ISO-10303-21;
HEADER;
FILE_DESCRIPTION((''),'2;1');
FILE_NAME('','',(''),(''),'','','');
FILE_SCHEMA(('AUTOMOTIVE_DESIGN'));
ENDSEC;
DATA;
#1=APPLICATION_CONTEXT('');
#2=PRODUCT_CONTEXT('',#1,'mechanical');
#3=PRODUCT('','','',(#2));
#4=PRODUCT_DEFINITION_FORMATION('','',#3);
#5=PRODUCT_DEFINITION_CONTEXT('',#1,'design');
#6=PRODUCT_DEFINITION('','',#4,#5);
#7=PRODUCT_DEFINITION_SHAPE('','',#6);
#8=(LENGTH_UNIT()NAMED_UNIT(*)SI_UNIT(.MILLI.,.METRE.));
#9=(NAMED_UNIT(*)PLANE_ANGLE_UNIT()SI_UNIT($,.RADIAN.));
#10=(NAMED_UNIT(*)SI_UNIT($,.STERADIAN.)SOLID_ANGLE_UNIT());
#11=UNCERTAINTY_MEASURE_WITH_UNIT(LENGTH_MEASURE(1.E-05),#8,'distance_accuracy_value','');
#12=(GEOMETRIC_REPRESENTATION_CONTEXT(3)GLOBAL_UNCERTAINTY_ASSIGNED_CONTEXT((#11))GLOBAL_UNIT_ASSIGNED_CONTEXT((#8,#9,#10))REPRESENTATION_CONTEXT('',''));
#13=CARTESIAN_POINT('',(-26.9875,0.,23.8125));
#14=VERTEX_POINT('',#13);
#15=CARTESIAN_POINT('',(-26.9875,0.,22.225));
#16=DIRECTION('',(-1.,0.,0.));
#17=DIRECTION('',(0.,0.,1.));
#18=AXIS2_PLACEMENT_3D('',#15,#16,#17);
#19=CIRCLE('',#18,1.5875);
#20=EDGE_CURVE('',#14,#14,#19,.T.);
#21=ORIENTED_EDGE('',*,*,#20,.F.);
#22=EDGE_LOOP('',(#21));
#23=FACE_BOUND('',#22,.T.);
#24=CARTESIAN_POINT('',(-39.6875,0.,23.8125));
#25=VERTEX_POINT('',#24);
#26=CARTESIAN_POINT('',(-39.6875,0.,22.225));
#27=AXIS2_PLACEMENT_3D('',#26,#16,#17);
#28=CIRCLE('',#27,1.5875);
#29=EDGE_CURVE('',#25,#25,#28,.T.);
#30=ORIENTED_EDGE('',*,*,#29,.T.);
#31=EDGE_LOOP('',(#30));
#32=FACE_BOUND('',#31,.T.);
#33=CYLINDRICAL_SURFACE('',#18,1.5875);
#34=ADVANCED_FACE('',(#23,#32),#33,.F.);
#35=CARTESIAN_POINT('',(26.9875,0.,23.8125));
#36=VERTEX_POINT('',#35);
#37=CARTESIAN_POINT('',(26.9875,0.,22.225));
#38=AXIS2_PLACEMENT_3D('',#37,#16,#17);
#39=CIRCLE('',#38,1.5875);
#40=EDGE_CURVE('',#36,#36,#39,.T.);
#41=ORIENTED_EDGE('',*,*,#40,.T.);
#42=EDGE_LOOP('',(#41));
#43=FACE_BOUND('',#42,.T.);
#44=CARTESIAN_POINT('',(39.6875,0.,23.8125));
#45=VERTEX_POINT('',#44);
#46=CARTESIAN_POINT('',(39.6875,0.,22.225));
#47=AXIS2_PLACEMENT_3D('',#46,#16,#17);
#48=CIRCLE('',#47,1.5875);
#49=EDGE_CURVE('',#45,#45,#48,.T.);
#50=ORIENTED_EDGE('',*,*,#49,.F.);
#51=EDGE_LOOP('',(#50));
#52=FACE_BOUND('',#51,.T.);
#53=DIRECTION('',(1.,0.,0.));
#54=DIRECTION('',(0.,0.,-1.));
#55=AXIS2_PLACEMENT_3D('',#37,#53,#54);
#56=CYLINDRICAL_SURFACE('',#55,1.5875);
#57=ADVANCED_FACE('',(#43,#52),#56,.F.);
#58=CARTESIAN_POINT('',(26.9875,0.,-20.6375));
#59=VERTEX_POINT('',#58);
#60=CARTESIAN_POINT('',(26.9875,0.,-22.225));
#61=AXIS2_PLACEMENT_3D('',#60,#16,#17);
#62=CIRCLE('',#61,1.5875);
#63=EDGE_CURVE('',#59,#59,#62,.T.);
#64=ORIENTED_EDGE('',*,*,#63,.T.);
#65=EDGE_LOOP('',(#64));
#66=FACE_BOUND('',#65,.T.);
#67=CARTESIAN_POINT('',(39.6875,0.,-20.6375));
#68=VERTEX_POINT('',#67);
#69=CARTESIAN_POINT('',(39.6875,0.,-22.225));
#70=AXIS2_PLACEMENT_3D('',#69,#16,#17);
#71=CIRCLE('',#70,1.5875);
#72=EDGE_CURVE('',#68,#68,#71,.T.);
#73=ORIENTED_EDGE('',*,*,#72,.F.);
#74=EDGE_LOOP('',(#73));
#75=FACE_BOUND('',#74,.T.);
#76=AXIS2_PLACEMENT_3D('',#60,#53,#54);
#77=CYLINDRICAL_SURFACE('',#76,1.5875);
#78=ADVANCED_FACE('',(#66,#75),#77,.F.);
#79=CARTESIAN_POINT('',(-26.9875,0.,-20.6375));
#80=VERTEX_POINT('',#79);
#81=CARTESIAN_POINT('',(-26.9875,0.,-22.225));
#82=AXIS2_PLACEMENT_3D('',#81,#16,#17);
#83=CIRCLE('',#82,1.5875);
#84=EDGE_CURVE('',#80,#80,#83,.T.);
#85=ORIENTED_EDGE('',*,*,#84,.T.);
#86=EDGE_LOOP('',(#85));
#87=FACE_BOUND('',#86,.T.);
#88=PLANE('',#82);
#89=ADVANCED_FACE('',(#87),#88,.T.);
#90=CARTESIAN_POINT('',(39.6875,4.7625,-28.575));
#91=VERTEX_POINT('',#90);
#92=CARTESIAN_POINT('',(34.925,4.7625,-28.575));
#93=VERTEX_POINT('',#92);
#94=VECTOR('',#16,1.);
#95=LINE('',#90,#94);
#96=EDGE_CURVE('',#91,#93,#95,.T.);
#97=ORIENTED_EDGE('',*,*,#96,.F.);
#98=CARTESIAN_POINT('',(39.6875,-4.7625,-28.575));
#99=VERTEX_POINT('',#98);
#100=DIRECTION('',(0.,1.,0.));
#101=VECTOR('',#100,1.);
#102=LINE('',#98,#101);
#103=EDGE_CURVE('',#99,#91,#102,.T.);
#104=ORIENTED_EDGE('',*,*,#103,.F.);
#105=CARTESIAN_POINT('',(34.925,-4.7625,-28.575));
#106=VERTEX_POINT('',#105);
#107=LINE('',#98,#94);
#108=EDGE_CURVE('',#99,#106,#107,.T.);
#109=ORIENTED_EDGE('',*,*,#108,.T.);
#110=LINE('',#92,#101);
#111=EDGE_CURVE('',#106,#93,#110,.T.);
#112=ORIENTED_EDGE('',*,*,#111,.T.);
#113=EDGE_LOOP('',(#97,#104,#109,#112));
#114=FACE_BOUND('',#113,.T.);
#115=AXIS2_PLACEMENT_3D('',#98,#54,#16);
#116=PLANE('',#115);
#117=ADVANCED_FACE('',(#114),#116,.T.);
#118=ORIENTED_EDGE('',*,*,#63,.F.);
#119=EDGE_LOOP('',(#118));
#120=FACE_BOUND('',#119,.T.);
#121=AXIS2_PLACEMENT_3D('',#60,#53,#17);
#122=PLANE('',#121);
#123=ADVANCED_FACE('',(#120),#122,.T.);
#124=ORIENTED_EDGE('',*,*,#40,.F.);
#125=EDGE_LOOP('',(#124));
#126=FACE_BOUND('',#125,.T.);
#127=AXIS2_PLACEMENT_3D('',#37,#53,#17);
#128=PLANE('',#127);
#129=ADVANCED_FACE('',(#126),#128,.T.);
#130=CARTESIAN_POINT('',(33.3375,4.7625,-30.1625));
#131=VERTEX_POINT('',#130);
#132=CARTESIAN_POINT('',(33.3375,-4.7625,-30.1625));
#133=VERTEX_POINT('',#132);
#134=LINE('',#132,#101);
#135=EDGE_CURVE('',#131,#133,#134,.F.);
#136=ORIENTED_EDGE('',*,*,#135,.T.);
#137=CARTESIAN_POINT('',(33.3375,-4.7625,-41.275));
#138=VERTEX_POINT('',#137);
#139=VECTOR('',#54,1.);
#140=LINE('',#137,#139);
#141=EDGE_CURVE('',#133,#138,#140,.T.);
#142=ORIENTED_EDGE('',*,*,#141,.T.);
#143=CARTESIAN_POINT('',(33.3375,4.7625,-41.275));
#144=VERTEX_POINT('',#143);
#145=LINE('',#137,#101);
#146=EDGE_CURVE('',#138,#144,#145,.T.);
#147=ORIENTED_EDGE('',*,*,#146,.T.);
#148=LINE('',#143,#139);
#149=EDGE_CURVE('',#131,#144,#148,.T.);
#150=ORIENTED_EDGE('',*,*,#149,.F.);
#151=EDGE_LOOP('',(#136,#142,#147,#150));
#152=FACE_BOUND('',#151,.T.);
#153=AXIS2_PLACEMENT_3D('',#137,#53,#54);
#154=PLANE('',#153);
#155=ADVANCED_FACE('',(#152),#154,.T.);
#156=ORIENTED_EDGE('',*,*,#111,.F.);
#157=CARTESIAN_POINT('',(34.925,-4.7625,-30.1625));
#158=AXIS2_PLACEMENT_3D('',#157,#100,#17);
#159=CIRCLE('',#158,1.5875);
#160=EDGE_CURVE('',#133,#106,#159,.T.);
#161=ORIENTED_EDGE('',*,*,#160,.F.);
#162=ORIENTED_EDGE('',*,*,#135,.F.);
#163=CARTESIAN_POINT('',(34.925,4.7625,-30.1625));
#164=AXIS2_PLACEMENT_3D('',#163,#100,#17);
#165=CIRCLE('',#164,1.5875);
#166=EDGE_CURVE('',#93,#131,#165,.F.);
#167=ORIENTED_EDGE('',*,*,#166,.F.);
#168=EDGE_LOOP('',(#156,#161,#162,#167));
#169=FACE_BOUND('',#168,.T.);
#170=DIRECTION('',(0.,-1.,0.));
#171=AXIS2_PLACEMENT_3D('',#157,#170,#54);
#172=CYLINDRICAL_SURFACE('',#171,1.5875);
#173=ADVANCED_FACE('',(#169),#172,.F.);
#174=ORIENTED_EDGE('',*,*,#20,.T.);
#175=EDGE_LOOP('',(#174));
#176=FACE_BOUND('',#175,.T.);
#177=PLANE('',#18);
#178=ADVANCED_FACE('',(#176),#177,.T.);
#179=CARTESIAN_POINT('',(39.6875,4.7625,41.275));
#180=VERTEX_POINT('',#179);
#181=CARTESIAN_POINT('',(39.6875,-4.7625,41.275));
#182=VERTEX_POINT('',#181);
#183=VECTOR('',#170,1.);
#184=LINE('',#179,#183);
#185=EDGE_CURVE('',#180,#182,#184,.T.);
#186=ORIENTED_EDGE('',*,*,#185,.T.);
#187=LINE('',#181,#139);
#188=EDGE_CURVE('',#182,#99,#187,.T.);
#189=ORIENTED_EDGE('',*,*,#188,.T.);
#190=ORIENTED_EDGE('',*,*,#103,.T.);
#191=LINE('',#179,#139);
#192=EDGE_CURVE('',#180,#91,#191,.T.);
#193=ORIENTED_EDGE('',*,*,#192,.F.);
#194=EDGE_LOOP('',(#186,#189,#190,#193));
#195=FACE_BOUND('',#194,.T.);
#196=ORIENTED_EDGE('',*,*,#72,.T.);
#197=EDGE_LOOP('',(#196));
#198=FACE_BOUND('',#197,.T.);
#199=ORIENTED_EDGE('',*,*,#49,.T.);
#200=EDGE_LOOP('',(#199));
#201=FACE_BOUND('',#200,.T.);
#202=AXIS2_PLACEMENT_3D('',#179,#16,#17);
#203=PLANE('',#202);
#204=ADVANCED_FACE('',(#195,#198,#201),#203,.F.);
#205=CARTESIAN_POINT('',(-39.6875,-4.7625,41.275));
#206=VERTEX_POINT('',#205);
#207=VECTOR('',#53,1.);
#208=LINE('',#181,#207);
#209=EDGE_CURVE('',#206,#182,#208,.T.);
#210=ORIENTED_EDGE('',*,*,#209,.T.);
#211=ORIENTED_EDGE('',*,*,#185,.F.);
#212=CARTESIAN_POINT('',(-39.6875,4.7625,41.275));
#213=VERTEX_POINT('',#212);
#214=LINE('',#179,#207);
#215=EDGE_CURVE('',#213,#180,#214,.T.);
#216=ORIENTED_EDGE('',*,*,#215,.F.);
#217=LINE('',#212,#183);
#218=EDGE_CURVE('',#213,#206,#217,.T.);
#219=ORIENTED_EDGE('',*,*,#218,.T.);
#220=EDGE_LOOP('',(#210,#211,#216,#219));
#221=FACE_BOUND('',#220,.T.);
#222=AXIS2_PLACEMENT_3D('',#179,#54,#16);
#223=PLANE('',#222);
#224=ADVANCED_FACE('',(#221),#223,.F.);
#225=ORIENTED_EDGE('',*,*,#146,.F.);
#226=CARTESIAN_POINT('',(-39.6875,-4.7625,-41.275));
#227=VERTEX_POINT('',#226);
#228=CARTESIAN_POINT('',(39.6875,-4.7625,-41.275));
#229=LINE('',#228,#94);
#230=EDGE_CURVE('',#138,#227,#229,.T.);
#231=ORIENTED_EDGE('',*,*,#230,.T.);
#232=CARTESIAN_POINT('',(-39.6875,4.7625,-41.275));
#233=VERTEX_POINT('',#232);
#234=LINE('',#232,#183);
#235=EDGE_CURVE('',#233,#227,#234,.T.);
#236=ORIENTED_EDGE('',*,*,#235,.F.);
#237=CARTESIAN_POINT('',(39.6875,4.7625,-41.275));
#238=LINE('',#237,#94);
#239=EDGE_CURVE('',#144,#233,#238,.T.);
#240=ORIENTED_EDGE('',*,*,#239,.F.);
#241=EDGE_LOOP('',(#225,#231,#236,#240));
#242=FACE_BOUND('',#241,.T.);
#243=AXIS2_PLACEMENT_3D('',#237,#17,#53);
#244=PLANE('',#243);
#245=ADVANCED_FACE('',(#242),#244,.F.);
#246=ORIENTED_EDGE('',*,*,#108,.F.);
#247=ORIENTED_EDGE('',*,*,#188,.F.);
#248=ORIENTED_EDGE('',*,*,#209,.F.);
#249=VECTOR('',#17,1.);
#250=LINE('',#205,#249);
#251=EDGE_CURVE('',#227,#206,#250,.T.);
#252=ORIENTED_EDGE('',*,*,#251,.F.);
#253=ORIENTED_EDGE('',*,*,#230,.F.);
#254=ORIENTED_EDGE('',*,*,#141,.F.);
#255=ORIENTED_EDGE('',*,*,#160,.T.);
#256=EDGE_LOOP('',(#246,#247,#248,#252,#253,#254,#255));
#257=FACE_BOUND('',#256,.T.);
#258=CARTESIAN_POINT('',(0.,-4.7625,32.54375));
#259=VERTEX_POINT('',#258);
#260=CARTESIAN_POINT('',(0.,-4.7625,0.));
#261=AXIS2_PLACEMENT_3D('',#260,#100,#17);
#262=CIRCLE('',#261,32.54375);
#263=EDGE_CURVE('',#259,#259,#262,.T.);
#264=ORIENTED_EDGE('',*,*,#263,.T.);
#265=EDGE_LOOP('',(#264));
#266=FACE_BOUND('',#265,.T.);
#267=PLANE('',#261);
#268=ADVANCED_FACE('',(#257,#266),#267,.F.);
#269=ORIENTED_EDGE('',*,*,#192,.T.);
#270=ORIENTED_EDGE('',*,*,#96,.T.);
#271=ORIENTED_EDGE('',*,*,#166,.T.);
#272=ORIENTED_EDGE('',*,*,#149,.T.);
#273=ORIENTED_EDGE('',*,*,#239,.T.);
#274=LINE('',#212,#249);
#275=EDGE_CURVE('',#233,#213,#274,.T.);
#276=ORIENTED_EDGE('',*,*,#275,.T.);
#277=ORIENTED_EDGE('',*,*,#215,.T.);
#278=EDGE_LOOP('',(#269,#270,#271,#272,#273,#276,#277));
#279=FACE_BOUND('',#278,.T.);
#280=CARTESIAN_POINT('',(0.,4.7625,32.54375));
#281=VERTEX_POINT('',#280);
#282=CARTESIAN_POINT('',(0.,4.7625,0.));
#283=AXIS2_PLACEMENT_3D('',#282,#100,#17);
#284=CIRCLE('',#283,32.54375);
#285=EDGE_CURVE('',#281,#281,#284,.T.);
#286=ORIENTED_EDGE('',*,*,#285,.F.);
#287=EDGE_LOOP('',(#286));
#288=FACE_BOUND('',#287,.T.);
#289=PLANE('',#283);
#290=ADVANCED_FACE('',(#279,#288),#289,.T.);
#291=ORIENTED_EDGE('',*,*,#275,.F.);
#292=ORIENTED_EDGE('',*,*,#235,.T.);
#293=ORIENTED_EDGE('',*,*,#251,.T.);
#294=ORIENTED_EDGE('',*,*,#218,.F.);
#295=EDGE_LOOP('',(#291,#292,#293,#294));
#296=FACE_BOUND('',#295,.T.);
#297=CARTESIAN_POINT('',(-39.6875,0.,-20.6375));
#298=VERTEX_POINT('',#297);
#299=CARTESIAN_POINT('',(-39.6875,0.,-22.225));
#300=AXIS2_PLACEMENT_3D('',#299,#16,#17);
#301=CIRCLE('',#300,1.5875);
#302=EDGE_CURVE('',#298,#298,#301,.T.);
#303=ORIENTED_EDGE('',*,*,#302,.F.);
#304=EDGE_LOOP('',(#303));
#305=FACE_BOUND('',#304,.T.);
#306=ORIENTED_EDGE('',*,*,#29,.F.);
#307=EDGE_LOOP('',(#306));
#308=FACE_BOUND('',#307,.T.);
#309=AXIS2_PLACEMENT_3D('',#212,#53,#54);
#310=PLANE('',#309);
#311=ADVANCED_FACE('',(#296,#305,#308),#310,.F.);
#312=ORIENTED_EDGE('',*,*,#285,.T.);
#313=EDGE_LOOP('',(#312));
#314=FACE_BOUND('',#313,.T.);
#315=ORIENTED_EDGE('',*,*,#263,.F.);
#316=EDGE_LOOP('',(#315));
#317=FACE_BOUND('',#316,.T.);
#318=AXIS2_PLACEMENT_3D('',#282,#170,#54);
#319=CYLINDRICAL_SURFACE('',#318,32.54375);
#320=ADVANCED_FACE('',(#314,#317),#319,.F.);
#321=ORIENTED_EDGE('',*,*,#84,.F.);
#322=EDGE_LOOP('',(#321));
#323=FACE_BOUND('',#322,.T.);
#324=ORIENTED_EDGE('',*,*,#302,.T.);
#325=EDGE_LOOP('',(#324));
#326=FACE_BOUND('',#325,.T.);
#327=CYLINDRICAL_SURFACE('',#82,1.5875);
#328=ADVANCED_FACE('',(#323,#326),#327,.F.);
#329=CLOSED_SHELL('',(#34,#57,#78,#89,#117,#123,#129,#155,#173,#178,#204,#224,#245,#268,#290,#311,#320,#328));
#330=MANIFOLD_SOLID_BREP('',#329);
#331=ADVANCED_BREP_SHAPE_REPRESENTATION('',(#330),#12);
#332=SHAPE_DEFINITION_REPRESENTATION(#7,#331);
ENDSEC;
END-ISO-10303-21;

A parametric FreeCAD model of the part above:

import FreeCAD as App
import Part
import Sketcher

V = App.Vector
Q = App.Units.Quantity


def edges_at(feature, points):
    """Names of the edges that pass closest to the given points."""
    edges = feature.Shape.Edges
    near = lambda p: min(range(len(edges)), key=lambda i: edges[i].distToShape(Part.Vertex(*p))[0])
    return sorted({f"Edge{near(p) + 1}" for p in points})

doc = App.newDocument("Part")
body = doc.addObject("PartDesign::Body", "Body")

sketch1 = body.newObject("Sketcher::SketchObject", "Sketch")
sketch1.AttachmentSupport = (doc.getObject("XZ_Plane"), [""])
sketch1.MapMode = "FlatFace"
sketch1.addGeometry(Part.LineSegment(V(-40, -41, 0), V(-40, 41, 0)), False)
sketch1.addGeometry(Part.LineSegment(V(-40, 41, 0), V(40, 41, 0)), False)
sketch1.addGeometry(Part.LineSegment(V(40, 41, 0), V(40, -41, 0)), False)
sketch1.addGeometry(Part.LineSegment(V(40, -41, 0), V(-40, -41, 0)), False)
sketch1.addGeometry(Part.Circle(V(0, 0, 0), V(0, 0, 1), 33), False)
sketch1.addConstraint(Sketcher.Constraint("Coincident", 0, 2, 1, 1))
sketch1.addConstraint(Sketcher.Constraint("Coincident", 1, 2, 2, 1))
sketch1.addConstraint(Sketcher.Constraint("Coincident", 2, 2, 3, 1))
sketch1.addConstraint(Sketcher.Constraint("Coincident", 3, 2, 0, 1))
sketch1.addConstraint(Sketcher.Constraint("Vertical", 0))
sketch1.addConstraint(Sketcher.Constraint("Horizontal", 1))
sketch1.addConstraint(Sketcher.Constraint("Vertical", 2))
sketch1.addConstraint(Sketcher.Constraint("Horizontal", 3))
sketch1.addConstraint(Sketcher.Constraint("Coincident", 4, 3, -1, 1))
sketch1.addConstraint(Sketcher.Constraint("Symmetric", 0, 2, 2, 2, -1, 1))
sketch1.addConstraint(Sketcher.Constraint("Diameter", 4, Q("2.5625 in")))
sketch1.addConstraint(Sketcher.Constraint("DistanceY", 0, 1, 0, 2, Q("3.25 in")))
sketch1.addConstraint(Sketcher.Constraint("DistanceX", 1, 1, 1, 2, Q("3.125 in")))
pad1 = body.newObject("PartDesign::Pad", "Pad")
pad1.Profile = sketch1
pad1.Length = Q("0.375 in")
pad1.Midplane = True

sketch2 = body.newObject("Sketcher::SketchObject", "Sketch001")
sketch2.AttachmentSupport = (doc.getObject("YZ_Plane"), [""])
sketch2.MapMode = "FlatFace"
sketch2.AttachmentOffset = App.Placement(V(0, 0, -1.5625 * 25.4), App.Rotation())
sketch2.addGeometry(Part.Circle(V(0, -22.2, 0), V(0, 0, 1), 1.6), False)
sketch2.addGeometry(Part.Circle(V(0, 22.2, 0), V(0, 0, 1), 1.6), False)
sketch2.addConstraint(Sketcher.Constraint("Equal", 0, 1))
sketch2.addConstraint(Sketcher.Constraint("Symmetric", 0, 3, 1, 3, -1, 1))
sketch2.addConstraint(Sketcher.Constraint("PointOnObject", 0, 3, -2))
sketch2.addConstraint(Sketcher.Constraint("Diameter", 0, Q("0.125 in")))
sketch2.addConstraint(Sketcher.Constraint("DistanceY", 0, 3, 1, 3, Q("1.75 in")))
pocket1 = body.newObject("PartDesign::Pocket", "Pocket")
pocket1.Profile = sketch2
pocket1.Length = Q("0.5 in")
pocket1.Reversed = True
doc.recompute()

mirrored = body.newObject("PartDesign::Mirrored", "Mirrored")
mirrored.Originals = [pocket1]
mirrored.MirrorPlane = (doc.getObject("YZ_Plane"), [""])
body.Tip = mirrored

sketch3 = body.newObject("Sketcher::SketchObject", "Sketch002")
sketch3.AttachmentSupport = (doc.getObject("XZ_Plane"), [""])
sketch3.MapMode = "FlatFace"
sketch3.AttachmentOffset = App.Placement(V(0, 0, -0.1875 * 25.4), App.Rotation())
sketch3.addGeometry(Part.LineSegment(V(40, -29, 0), V(33, -29, 0)), False)
sketch3.addGeometry(Part.LineSegment(V(33, -29, 0), V(33, -41, 0)), False)
sketch3.addGeometry(Part.LineSegment(V(33, -41, 0), V(40, -41, 0)), False)
sketch3.addGeometry(Part.LineSegment(V(40, -41, 0), V(40, -29, 0)), False)
sketch3.addConstraint(Sketcher.Constraint("Coincident", 0, 2, 1, 1))
sketch3.addConstraint(Sketcher.Constraint("Coincident", 1, 2, 2, 1))
sketch3.addConstraint(Sketcher.Constraint("Coincident", 2, 2, 3, 1))
sketch3.addConstraint(Sketcher.Constraint("Coincident", 3, 2, 0, 1))
sketch3.addConstraint(Sketcher.Constraint("Horizontal", 0))
sketch3.addConstraint(Sketcher.Constraint("Vertical", 1))
sketch3.addConstraint(Sketcher.Constraint("Horizontal", 2))
sketch3.addConstraint(Sketcher.Constraint("Vertical", 3))
sketch3.addConstraint(Sketcher.Constraint("DistanceY", 1, 2, 1, 1, Q("0.5 in")))
sketch3.addConstraint(Sketcher.Constraint("DistanceX", 0, 2, 0, 1, Q("0.25 in")))
sketch3.addConstraint(Sketcher.Constraint("DistanceX", -1, 1, 0, 2, Q("1.3125 in")))
sketch3.addConstraint(Sketcher.Constraint("DistanceY", 0, 2, -1, 1, Q("1.125 in")))
pocket2 = body.newObject("PartDesign::Pocket", "Pocket001")
pocket2.Profile = sketch3
pocket2.Type = "ThroughAll"
pocket2.Reversed = True
doc.recompute()

fillet = body.newObject("PartDesign::Fillet", "Fillet")
fillet.Base = (pocket2, edges_at(pocket2, [(33.337, 0, -28.575)]))
fillet.Radius = Q("0.0625 in")

doc.recompute()
